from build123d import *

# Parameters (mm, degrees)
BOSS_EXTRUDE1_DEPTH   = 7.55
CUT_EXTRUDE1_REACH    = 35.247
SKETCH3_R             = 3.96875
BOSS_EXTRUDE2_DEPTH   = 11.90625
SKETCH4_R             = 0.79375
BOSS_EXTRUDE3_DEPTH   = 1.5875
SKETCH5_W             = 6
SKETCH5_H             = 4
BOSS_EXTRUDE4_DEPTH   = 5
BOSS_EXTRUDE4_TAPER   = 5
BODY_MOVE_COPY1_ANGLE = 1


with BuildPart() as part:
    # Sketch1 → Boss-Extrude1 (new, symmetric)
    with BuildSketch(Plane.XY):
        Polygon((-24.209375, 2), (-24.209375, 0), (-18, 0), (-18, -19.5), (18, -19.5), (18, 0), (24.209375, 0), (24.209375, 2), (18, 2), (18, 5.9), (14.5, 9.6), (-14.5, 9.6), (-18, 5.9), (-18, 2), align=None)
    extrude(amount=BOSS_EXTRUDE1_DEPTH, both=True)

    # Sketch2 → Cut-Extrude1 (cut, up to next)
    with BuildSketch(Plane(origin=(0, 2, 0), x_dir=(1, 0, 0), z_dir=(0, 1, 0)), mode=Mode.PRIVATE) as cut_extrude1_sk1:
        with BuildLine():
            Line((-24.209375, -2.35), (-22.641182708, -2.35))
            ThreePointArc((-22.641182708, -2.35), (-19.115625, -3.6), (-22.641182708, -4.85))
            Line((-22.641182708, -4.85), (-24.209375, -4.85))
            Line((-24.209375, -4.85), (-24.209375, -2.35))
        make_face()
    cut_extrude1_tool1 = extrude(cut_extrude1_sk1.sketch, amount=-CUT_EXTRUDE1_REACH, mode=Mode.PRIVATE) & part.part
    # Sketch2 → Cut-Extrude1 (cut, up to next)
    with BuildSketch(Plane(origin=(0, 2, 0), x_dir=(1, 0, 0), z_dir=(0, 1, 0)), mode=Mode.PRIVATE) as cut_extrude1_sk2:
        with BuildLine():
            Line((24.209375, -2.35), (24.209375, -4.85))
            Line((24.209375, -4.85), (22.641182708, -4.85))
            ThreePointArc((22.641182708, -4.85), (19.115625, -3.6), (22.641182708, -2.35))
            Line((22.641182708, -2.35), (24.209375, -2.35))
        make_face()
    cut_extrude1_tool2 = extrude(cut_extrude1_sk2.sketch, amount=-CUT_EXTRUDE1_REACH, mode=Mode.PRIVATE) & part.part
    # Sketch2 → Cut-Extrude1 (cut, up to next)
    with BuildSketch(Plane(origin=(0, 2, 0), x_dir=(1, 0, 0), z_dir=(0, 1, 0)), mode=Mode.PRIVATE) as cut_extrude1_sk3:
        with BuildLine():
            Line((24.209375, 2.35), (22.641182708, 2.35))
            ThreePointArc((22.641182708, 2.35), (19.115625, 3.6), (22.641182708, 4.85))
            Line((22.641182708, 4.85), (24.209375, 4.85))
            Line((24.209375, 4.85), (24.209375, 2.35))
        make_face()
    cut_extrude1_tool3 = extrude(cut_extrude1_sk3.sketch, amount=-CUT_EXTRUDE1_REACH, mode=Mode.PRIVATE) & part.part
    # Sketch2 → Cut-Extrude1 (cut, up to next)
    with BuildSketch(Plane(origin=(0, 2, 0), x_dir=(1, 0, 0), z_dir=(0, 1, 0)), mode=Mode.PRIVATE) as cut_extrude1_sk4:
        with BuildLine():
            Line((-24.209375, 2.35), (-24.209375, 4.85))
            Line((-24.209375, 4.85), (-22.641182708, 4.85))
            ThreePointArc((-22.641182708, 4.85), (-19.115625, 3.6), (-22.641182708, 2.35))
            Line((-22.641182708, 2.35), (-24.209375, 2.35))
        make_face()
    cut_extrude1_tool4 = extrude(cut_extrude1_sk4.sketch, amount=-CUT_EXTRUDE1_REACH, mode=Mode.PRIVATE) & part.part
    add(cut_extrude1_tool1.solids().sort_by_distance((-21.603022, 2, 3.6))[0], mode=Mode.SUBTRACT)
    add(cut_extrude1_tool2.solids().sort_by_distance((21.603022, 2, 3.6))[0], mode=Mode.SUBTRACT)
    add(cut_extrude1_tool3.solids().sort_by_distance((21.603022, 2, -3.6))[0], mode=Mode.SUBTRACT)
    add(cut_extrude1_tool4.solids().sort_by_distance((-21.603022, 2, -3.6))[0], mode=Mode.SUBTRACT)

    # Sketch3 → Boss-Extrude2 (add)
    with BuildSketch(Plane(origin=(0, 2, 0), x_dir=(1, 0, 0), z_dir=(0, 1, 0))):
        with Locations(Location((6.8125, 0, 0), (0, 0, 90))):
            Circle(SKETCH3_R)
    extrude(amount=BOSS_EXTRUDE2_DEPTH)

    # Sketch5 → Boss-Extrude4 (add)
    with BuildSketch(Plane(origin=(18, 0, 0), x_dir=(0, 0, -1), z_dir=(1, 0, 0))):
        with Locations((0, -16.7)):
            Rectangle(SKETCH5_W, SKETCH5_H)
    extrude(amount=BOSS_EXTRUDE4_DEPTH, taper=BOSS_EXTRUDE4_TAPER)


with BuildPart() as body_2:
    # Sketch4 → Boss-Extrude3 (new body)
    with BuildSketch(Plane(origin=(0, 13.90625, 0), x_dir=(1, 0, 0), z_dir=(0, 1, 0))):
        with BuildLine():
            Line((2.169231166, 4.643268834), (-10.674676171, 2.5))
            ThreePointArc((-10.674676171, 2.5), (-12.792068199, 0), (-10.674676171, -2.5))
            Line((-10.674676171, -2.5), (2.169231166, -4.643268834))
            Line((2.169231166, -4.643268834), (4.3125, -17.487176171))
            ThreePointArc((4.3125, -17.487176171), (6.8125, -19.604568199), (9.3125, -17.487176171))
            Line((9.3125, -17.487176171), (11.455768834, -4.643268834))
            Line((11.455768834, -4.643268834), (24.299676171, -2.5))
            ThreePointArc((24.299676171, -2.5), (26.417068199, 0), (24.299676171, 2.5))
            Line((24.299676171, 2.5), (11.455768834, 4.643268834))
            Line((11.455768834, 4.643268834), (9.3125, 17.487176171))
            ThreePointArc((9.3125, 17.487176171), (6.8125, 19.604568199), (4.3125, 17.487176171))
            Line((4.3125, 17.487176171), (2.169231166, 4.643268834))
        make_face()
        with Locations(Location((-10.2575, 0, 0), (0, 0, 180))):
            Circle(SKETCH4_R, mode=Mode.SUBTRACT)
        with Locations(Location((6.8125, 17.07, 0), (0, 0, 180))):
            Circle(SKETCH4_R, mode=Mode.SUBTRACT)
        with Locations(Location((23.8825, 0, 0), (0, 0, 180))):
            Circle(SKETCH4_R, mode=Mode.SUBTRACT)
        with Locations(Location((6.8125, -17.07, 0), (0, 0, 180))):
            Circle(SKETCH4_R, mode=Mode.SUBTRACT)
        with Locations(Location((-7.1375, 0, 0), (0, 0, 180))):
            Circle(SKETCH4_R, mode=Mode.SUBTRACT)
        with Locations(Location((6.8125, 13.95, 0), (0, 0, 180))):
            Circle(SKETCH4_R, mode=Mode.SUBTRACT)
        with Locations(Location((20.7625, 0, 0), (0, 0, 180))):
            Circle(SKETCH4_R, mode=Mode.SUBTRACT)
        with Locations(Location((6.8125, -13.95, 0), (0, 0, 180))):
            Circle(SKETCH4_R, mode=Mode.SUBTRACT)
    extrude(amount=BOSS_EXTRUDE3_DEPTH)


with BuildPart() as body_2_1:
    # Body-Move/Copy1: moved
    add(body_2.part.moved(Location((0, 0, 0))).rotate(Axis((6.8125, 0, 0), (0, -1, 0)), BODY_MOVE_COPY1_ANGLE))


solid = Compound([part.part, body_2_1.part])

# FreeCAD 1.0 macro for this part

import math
import FreeCAD as App
import Part
import Sketcher

V = App.Vector
Q = App.Units.Quantity

doc = App.newDocument("Part")
body = doc.addObject("PartDesign::Body", "Body")

sketch1 = body.newObject("Sketcher::SketchObject", "Sketch")
sketch1.AttachmentSupport = (doc.getObject("XY_Plane"), [""])
sketch1.MapMode = "FlatFace"
sketch1.addGeometry(Part.LineSegment(V(-24.209375, 2, 0), V(-24.209375, 0, 0)), False)
sketch1.addGeometry(Part.LineSegment(V(-24.209375, 0, 0), V(-18, 0, 0)), False)
sketch1.addGeometry(Part.LineSegment(V(-18, 0, 0), V(-18, -19.5, 0)), False)
sketch1.addGeometry(Part.LineSegment(V(-18, -19.5, 0), V(18, -19.5, 0)), False)
sketch1.addGeometry(Part.LineSegment(V(18, -19.5, 0), V(18, 0, 0)), False)
sketch1.addGeometry(Part.LineSegment(V(18, 0, 0), V(24.209375, 0, 0)), False)
sketch1.addGeometry(Part.LineSegment(V(24.209375, 0, 0), V(24.209375, 2, 0)), False)
sketch1.addGeometry(Part.LineSegment(V(24.209375, 2, 0), V(18, 2, 0)), False)
sketch1.addGeometry(Part.LineSegment(V(18, 2, 0), V(18, 5.9, 0)), False)
sketch1.addGeometry(Part.LineSegment(V(18, 5.9, 0), V(14.5, 9.6, 0)), False)
sketch1.addGeometry(Part.LineSegment(V(14.5, 9.6, 0), V(-14.5, 9.6, 0)), False)
sketch1.addGeometry(Part.LineSegment(V(-14.5, 9.6, 0), V(-18, 5.9, 0)), False)
sketch1.addGeometry(Part.LineSegment(V(-18, 5.9, 0), V(-18, 2, 0)), False)
sketch1.addGeometry(Part.LineSegment(V(-18, 2, 0), V(-24.209375, 2, 0)), False)
sketch1.addConstraint(Sketcher.Constraint("Coincident", 0, 2, 1, 1))
sketch1.addConstraint(Sketcher.Constraint("Coincident", 1, 2, 2, 1))
sketch1.addConstraint(Sketcher.Constraint("Coincident", 2, 2, 3, 1))
sketch1.addConstraint(Sketcher.Constraint("Coincident", 3, 2, 4, 1))
sketch1.addConstraint(Sketcher.Constraint("Coincident", 4, 2, 5, 1))
sketch1.addConstraint(Sketcher.Constraint("Coincident", 5, 2, 6, 1))
sketch1.addConstraint(Sketcher.Constraint("Coincident", 6, 2, 7, 1))
sketch1.addConstraint(Sketcher.Constraint("Coincident", 7, 2, 8, 1))
sketch1.addConstraint(Sketcher.Constraint("Coincident", 8, 2, 9, 1))
sketch1.addConstraint(Sketcher.Constraint("Coincident", 9, 2, 10, 1))
sketch1.addConstraint(Sketcher.Constraint("Coincident", 10, 2, 11, 1))
sketch1.addConstraint(Sketcher.Constraint("Coincident", 11, 2, 12, 1))
sketch1.addConstraint(Sketcher.Constraint("Coincident", 12, 2, 13, 1))
sketch1.addConstraint(Sketcher.Constraint("Coincident", 13, 2, 0, 1))
sketch1.addConstraint(Sketcher.Constraint("Vertical", 0))
sketch1.addConstraint(Sketcher.Constraint("Horizontal", 1))
sketch1.addConstraint(Sketcher.Constraint("Vertical", 2))
sketch1.addConstraint(Sketcher.Constraint("Horizontal", 3))
sketch1.addConstraint(Sketcher.Constraint("Vertical", 4))
sketch1.addConstraint(Sketcher.Constraint("Horizontal", 5))
sketch1.addConstraint(Sketcher.Constraint("Vertical", 6))
sketch1.addConstraint(Sketcher.Constraint("Horizontal", 7))
sketch1.addConstraint(Sketcher.Constraint("Vertical", 8))
sketch1.addConstraint(Sketcher.Constraint("Horizontal", 10))
sketch1.addConstraint(Sketcher.Constraint("Vertical", 12))
sketch1.addConstraint(Sketcher.Constraint("Horizontal", 13))
sketch1.addConstraint(Sketcher.Constraint("Symmetric", 1, 2, 4, 2, -1, 1))
sketch1.addConstraint(Sketcher.Constraint("Symmetric", 0, 2, 5, 2, -2))
sketch1.addConstraint(Sketcher.Constraint("Symmetric", 8, 2, 11, 2, -2))
sketch1.addConstraint(Sketcher.Constraint("Horizontal", 7, 2, 12, 2))
sketch1.addConstraint(Sketcher.Constraint("Vertical", 4, 2, 7, 2))
sketch1.addConstraint(Sketcher.Constraint("Equal", 9, 11))
sketch1.addConstraint(Sketcher.Constraint("DistanceX", 3, 1, 3, 2, Q("36 mm")))
sketch1.addConstraint(Sketcher.Constraint("DistanceX", 10, 2, 10, 1, Q("29 mm")))
sketch1.addConstraint(Sketcher.Constraint("DistanceY", 0, 2, 0, 1, Q("2 mm")))
sketch1.addConstraint(Sketcher.Constraint("DistanceY", 2, 2, 2, 1, Q("19.5 mm")))
sketch1.addConstraint(Sketcher.Constraint("DistanceY", 8, 1, 8, 2, Q("3.9 mm")))
sketch1.addConstraint(Sketcher.Constraint("DistanceY", -1, 1, 9, 2, Q("9.6 mm")))
sketch1.addConstraint(Sketcher.Constraint("DistanceX", 1, 1, 1, 2, Q("6.209375 mm")))
pad1 = body.newObject("PartDesign::Pad", "Pad")
pad1.Profile = sketch1
pad1.Length = 15.1
pad1.Midplane = True

sketch2 = body.newObject("Sketcher::SketchObject", "Sketch001")
sketch2.AttachmentSupport = (doc.getObject("XZ_Plane"), [""])
sketch2.MapMode = "FlatFace"
sketch2.AttachmentOffset = App.Placement(V(0, 0, -2), App.Rotation())
sketch2.addGeometry(Part.LineSegment(V(-22.641183, 2.35, 0), V(-24.209375, 2.35, 0)), False)
sketch2.addGeometry(Part.LineSegment(V(-24.209375, 2.35, 0), V(-24.209375, 4.85, 0)), False)
sketch2.addGeometry(Part.LineSegment(V(-24.209375, 4.85, 0), V(-22.641183, 4.85, 0)), False)
sketch2.addGeometry(Part.ArcOfCircle(Part.Circle(V(-21.1, 3.6, 0), V(0, 0, 1), 1.984375), math.radians(-140.955687), math.radians(140.955687)), False)
sketch2.addConstraint(Sketcher.Constraint("Coincident", 0, 2, 1, 1))
sketch2.addConstraint(Sketcher.Constraint("Coincident", 1, 2, 2, 1))
sketch2.addConstraint(Sketcher.Constraint("Coincident", 2, 2, 3, 2))
sketch2.addConstraint(Sketcher.Constraint("Coincident", 3, 1, 0, 1))
sketch2.addConstraint(Sketcher.Constraint("Horizontal", 0))
sketch2.addConstraint(Sketcher.Constraint("Vertical", 1))
sketch2.addConstraint(Sketcher.Constraint("Horizontal", 2))
sketch2.addConstraint(Sketcher.Constraint("Vertical", 2, 2, 3, 1))
sketch2.addConstraint(Sketcher.Constraint("DistanceY", 1, 1, 1, 2, Q("2.5 mm")))
sketch2.addConstraint(Sketcher.Constraint("DistanceX", 3, 3, -1, 1, Q("21.1 mm")))
sketch2.addConstraint(Sketcher.Constraint("DistanceY", -1, 1, 3, 3, Q("3.6 mm")))
sketch2.addConstraint(Sketcher.Constraint("Radius", 3, Q("1.984375 mm")))
sketch2.addConstraint(Sketcher.Constraint("DistanceX", 0, 2, 0, 1, Q("1.568192 mm")))
pocket1 = body.newObject("PartDesign::Pocket", "Pocket")
pocket1.Profile = sketch2
pocket1.Type = "UpToFirst"
pocket1.Reversed = True

sketch3 = body.newObject("Sketcher::SketchObject", "Sketch002")
sketch3.AttachmentSupport = (doc.getObject("XZ_Plane"), [""])
sketch3.MapMode = "FlatFace"
sketch3.AttachmentOffset = App.Placement(V(0, 0, -2), App.Rotation())
sketch3.addGeometry(Part.LineSegment(V(24.209375, 4.85, 0), V(24.209375, 2.35, 0)), False)
sketch3.addGeometry(Part.LineSegment(V(24.209375, 2.35, 0), V(22.641183, 2.35, 0)), False)
sketch3.addGeometry(Part.ArcOfCircle(Part.Circle(V(21.1, 3.6, 0), V(0, 0, 1), 1.984375), math.radians(39.044313), math.radians(320.955687)), False)
sketch3.addGeometry(Part.LineSegment(V(22.641183, 4.85, 0), V(24.209375, 4.85, 0)), False)
sketch3.addConstraint(Sketcher.Constraint("Coincident", 0, 2, 1, 1))
sketch3.addConstraint(Sketcher.Constraint("Coincident", 1, 2, 2, 2))
sketch3.addConstraint(Sketcher.Constraint("Coincident", 2, 1, 3, 1))
sketch3.addConstraint(Sketcher.Constraint("Coincident", 3, 2, 0, 1))
sketch3.addConstraint(Sketcher.Constraint("Vertical", 0))
sketch3.addConstraint(Sketcher.Constraint("Horizontal", 1))
sketch3.addConstraint(Sketcher.Constraint("Horizontal", 3))
sketch3.addConstraint(Sketcher.Constraint("Vertical", 1, 2, 2, 1))
sketch3.addConstraint(Sketcher.Constraint("DistanceY", 0, 2, 0, 1, Q("2.5 mm")))
sketch3.addConstraint(Sketcher.Constraint("DistanceX", -1, 1, 2, 3, Q("21.1 mm")))
sketch3.addConstraint(Sketcher.Constraint("DistanceY", -1, 1, 2, 3, Q("3.6 mm")))
sketch3.addConstraint(Sketcher.Constraint("Radius", 2, Q("1.984375 mm")))
sketch3.addConstraint(Sketcher.Constraint("DistanceX", 1, 2, 1, 1, Q("1.568192 mm")))
pocket2 = body.newObject("PartDesign::Pocket", "Pocket001")
pocket2.Profile = sketch3
pocket2.Type = "UpToFirst"
pocket2.Reversed = True

sketch4 = body.newObject("Sketcher::SketchObject", "Sketch003")
sketch4.AttachmentSupport = (doc.getObject("XZ_Plane"), [""])
sketch4.MapMode = "FlatFace"
sketch4.AttachmentOffset = App.Placement(V(0, 0, -2), App.Rotation())
sketch4.addGeometry(Part.LineSegment(V(22.641183, -2.35, 0), V(24.209375, -2.35, 0)), False)
sketch4.addGeometry(Part.LineSegment(V(24.209375, -2.35, 0), V(24.209375, -4.85, 0)), False)
sketch4.addGeometry(Part.LineSegment(V(24.209375, -4.85, 0), V(22.641183, -4.85, 0)), False)
sketch4.addGeometry(Part.ArcOfCircle(Part.Circle(V(21.1, -3.6, 0), V(0, 0, 1), 1.984375), math.radians(39.044313), math.radians(320.955687)), False)
sketch4.addConstraint(Sketcher.Constraint("Coincident", 0, 2, 1, 1))
sketch4.addConstraint(Sketcher.Constraint("Coincident", 1, 2, 2, 1))
sketch4.addConstraint(Sketcher.Constraint("Coincident", 2, 2, 3, 2))
sketch4.addConstraint(Sketcher.Constraint("Coincident", 3, 1, 0, 1))
sketch4.addConstraint(Sketcher.Constraint("Horizontal", 0))
sketch4.addConstraint(Sketcher.Constraint("Vertical", 1))
sketch4.addConstraint(Sketcher.Constraint("Horizontal", 2))
sketch4.addConstraint(Sketcher.Constraint("Vertical", 2, 2, 3, 1))
sketch4.addConstraint(Sketcher.Constraint("DistanceY", 1, 2, 1, 1, Q("2.5 mm")))
sketch4.addConstraint(Sketcher.Constraint("DistanceX", -1, 1, 3, 3, Q("21.1 mm")))
sketch4.addConstraint(Sketcher.Constraint("DistanceY", 3, 3, -1, 1, Q("3.6 mm")))
sketch4.addConstraint(Sketcher.Constraint("Radius", 3, Q("1.984375 mm")))
sketch4.addConstraint(Sketcher.Constraint("DistanceX", 0, 1, 0, 2, Q("1.568192 mm")))
pocket3 = body.newObject("PartDesign::Pocket", "Pocket002")
pocket3.Profile = sketch4
pocket3.Type = "UpToFirst"
pocket3.Reversed = True

sketch5 = body.newObject("Sketcher::SketchObject", "Sketch004")
sketch5.AttachmentSupport = (doc.getObject("XZ_Plane"), [""])
sketch5.MapMode = "FlatFace"
sketch5.AttachmentOffset = App.Placement(V(0, 0, -2), App.Rotation())
sketch5.addGeometry(Part.LineSegment(V(-24.209375, -4.85, 0), V(-24.209375, -2.35, 0)), False)
sketch5.addGeometry(Part.LineSegment(V(-24.209375, -2.35, 0), V(-22.641183, -2.35, 0)), False)
sketch5.addGeometry(Part.ArcOfCircle(Part.Circle(V(-21.1, -3.6, 0), V(0, 0, 1), 1.984375), math.radians(-140.955687), math.radians(140.955687)), False)
sketch5.addGeometry(Part.LineSegment(V(-22.641183, -4.85, 0), V(-24.209375, -4.85, 0)), False)
sketch5.addConstraint(Sketcher.Constraint("Coincident", 0, 2, 1, 1))
sketch5.addConstraint(Sketcher.Constraint("Coincident", 1, 2, 2, 2))
sketch5.addConstraint(Sketcher.Constraint("Coincident", 2, 1, 3, 1))
sketch5.addConstraint(Sketcher.Constraint("Coincident", 3, 2, 0, 1))
sketch5.addConstraint(Sketcher.Constraint("Vertical", 0))
sketch5.addConstraint(Sketcher.Constraint("Horizontal", 1))
sketch5.addConstraint(Sketcher.Constraint("Horizontal", 3))
sketch5.addConstraint(Sketcher.Constraint("Vertical", 1, 2, 2, 1))
sketch5.addConstraint(Sketcher.Constraint("DistanceY", 0, 1, 0, 2, Q("2.5 mm")))
sketch5.addConstraint(Sketcher.Constraint("DistanceX", 2, 3, -1, 1, Q("21.1 mm")))
sketch5.addConstraint(Sketcher.Constraint("DistanceY", 2, 3, -1, 1, Q("3.6 mm")))
sketch5.addConstraint(Sketcher.Constraint("Radius", 2, Q("1.984375 mm")))
sketch5.addConstraint(Sketcher.Constraint("DistanceX", 1, 1, 1, 2, Q("1.568192 mm")))
pocket4 = body.newObject("PartDesign::Pocket", "Pocket003")
pocket4.Profile = sketch5
pocket4.Type = "UpToFirst"
pocket4.Reversed = True

sketch6 = body.newObject("Sketcher::SketchObject", "Sketch005")
sketch6.AttachmentSupport = (doc.getObject("XZ_Plane"), [""])
sketch6.MapMode = "FlatFace"
sketch6.AttachmentOffset = App.Placement(V(0, 0, -2), App.Rotation())
sketch6.addGeometry(Part.Circle(V(6.8125, 0, 0), V(0, 0, 1), 3.96875), False)
sketch6.addConstraint(Sketcher.Constraint("PointOnObject", 0, 3, -1))
sketch6.addConstraint(Sketcher.Constraint("Diameter", 0, Q("7.9375 mm")))
sketch6.addConstraint(Sketcher.Constraint("DistanceX", -1, 1, 0, 3, Q("6.8125 mm")))
pad2 = body.newObject("PartDesign::Pad", "Pad001")
pad2.Profile = sketch6
pad2.Length = 11.90625
pad2.Reversed = True

sketch7 = body.newObject("Sketcher::SketchObject", "Sketch006")
sketch7.AttachmentSupport = (doc.getObject("YZ_Plane"), [""])
sketch7.MapMode = "FlatFace"
sketch7.AttachmentOffset = App.Placement(V(0, 0, 18), App.Rotation())
sketch7.addGeometry(Part.LineSegment(V(-14.7, 3, 0), V(-18.7, 3, 0)), False)
sketch7.addGeometry(Part.LineSegment(V(-18.7, 3, 0), V(-18.7, -3, 0)), False)
sketch7.addGeometry(Part.LineSegment(V(-18.7, -3, 0), V(-14.7, -3, 0)), False)
sketch7.addGeometry(Part.LineSegment(V(-14.7, -3, 0), V(-14.7, 3, 0)), False)
sketch7.addConstraint(Sketcher.Constraint("Coincident", 0, 2, 1, 1))
sketch7.addConstraint(Sketcher.Constraint("Coincident", 1, 2, 2, 1))
sketch7.addConstraint(Sketcher.Constraint("Coincident", 2, 2, 3, 1))
sketch7.addConstraint(Sketcher.Constraint("Coincident", 3, 2, 0, 1))
sketch7.addConstraint(Sketcher.Constraint("Horizontal", 0))
sketch7.addConstraint(Sketcher.Constraint("Vertical", 1))
sketch7.addConstraint(Sketcher.Constraint("Horizontal", 2))
sketch7.addConstraint(Sketcher.Constraint("Vertical", 3))
sketch7.addConstraint(Sketcher.Constraint("DistanceX", 0, 2, 0, 1, Q("4 mm")))
sketch7.addConstraint(Sketcher.Constraint("DistanceY", 1, 2, 1, 1, Q("6 mm")))
sketch7.addConstraint(Sketcher.Constraint("DistanceY", -1, 1, 0, 2, Q("3 mm")))
sketch7.addConstraint(Sketcher.Constraint("DistanceX", 0, 2, -1, 1, Q("18.7 mm")))
pad3 = body.newObject("PartDesign::Pad", "Pad002")
pad3.Profile = sketch7
pad3.Length = 5
pad3.TaperAngle = -5
body2 = doc.addObject("PartDesign::Body", "Body001")

sketch8 = body2.newObject("Sketcher::SketchObject", "Sketch007")
sketch8.AttachmentSupport = (doc.getObject("XZ_Plane001"), [""])
sketch8.MapMode = "FlatFace"
sketch8.AttachmentOffset = App.Placement(V(0, 0, -13.90625), App.Rotation())
sketch8.addGeometry(Part.LineSegment(V(2.169231, -4.643269, 0), V(-10.674676, -2.5, 0)), False)
sketch8.addGeometry(Part.ArcOfCircle(Part.Circle(V(-10.2575, 0, 0), V(0, 0, 1), 2.534568), math.radians(99.473683), math.radians(260.526317)), False)
sketch8.addGeometry(Part.LineSegment(V(-10.674676, 2.5, 0), V(2.169231, 4.643269, 0)), False)
sketch8.addGeometry(Part.LineSegment(V(2.169231, 4.643269, 0), V(4.3125, 17.487176, 0)), False)
sketch8.addGeometry(Part.ArcOfCircle(Part.Circle(V(6.8125, 17.07, 0), V(0, 0, 1), 2.534568), math.radians(9.473683), math.radians(170.526317)), False)
sketch8.addGeometry(Part.LineSegment(V(9.3125, 17.487176, 0), V(11.455769, 4.643269, 0)), False)
sketch8.addGeometry(Part.LineSegment(V(11.455769, 4.643269, 0), V(24.299676, 2.5, 0)), False)
sketch8.addGeometry(Part.ArcOfCircle(Part.Circle(V(23.8825, 0, 0), V(0, 0, 1), 2.534568), math.radians(-80.526317), math.radians(80.526317)), False)
sketch8.addGeometry(Part.LineSegment(V(24.299676, -2.5, 0), V(11.455769, -4.643269, 0)), False)
sketch8.addGeometry(Part.LineSegment(V(11.455769, -4.643269, 0), V(9.3125, -17.487176, 0)), False)
sketch8.addGeometry(Part.ArcOfCircle(Part.Circle(V(6.8125, -17.07, 0), V(0, 0, 1), 2.534568), math.radians(-170.526317), math.radians(-9.473683)), False)
sketch8.addGeometry(Part.LineSegment(V(4.3125, -17.487176, 0), V(2.169231, -4.643269, 0)), False)
sketch8.addGeometry(Part.Circle(V(6.8125, 17.07, 0), V(0, 0, 1), 0.79375), False)
sketch8.addGeometry(Part.Circle(V(6.8125, 13.95, 0), V(0, 0, 1), 0.79375), False)
sketch8.addGeometry(Part.Circle(V(-10.2575, 0, 0), V(0, 0, 1), 0.79375), False)
sketch8.addGeometry(Part.Circle(V(-7.1375, 0, 0), V(0, 0, 1), 0.79375), False)
sketch8.addGeometry(Part.Circle(V(20.7625, 0, 0), V(0, 0, 1), 0.79375), False)
sketch8.addGeometry(Part.Circle(V(23.8825, 0, 0), V(0, 0, 1), 0.79375), False)
sketch8.addGeometry(Part.Circle(V(6.8125, -13.95, 0), V(0, 0, 1), 0.79375), False)
sketch8.addGeometry(Part.Circle(V(6.8125, -17.07, 0), V(0, 0, 1), 0.79375), False)
sketch8.addConstraint(Sketcher.Constraint("Tangent", 0, 2, 1, 2))
sketch8.addConstraint(Sketcher.Constraint("Tangent", 1, 1, 2, 1))
sketch8.addConstraint(Sketcher.Constraint("Coincident", 2, 2, 3, 1))
sketch8.addConstraint(Sketcher.Constraint("Tangent", 3, 2, 4, 2))
sketch8.addConstraint(Sketcher.Constraint("Tangent", 4, 1, 5, 1))
sketch8.addConstraint(Sketcher.Constraint("Coincident", 5, 2, 6, 1))
sketch8.addConstraint(Sketcher.Constraint("Tangent", 6, 2, 7, 2))
sketch8.addConstraint(Sketcher.Constraint("Tangent", 7, 1, 8, 1))
sketch8.addConstraint(Sketcher.Constraint("Coincident", 8, 2, 9, 1))
sketch8.addConstraint(Sketcher.Constraint("Tangent", 9, 2, 10, 2))
sketch8.addConstraint(Sketcher.Constraint("Tangent", 10, 1, 11, 1))
sketch8.addConstraint(Sketcher.Constraint("Coincident", 11, 2, 0, 1))
sketch8.addConstraint(Sketcher.Constraint("Coincident", 12, 3, 4, 3))
sketch8.addConstraint(Sketcher.Constraint("Coincident", 14, 3, 1, 3))
sketch8.addConstraint(Sketcher.Constraint("Coincident", 17, 3, 7, 3))
sketch8.addConstraint(Sketcher.Constraint("Coincident", 19, 3, 10, 3))
sketch8.addConstraint(Sketcher.Constraint("Equal", 1, 4))
sketch8.addConstraint(Sketcher.Constraint("Equal", 4, 7))
sketch8.addConstraint(Sketcher.Constraint("Equal", 7, 10))
sketch8.addConstraint(Sketcher.Constraint("Equal", 12, 13))
sketch8.addConstraint(Sketcher.Constraint("Equal", 13, 14))
sketch8.addConstraint(Sketcher.Constraint("Equal", 14, 15))
sketch8.addConstraint(Sketcher.Constraint("Equal", 15, 16))
sketch8.addConstraint(Sketcher.Constraint("Equal", 16, 17))
sketch8.addConstraint(Sketcher.Constraint("Equal", 17, 18))
sketch8.addConstraint(Sketcher.Constraint("Equal", 18, 19))
sketch8.addConstraint(Sketcher.Constraint("Symmetric", 4, 3, 10, 3, -1))
sketch8.addConstraint(Sketcher.Constraint("Symmetric", 13, 3, 18, 3, -1))
sketch8.addConstraint(Sketcher.Constraint("Symmetric", 0, 2, 1, 1, -1))
sketch8.addConstraint(Sketcher.Constraint("Symmetric", 6, 2, 7, 1, -1))
sketch8.addConstraint(Sketcher.Constraint("PointOnObject", 15, 3, -1))
sketch8.addConstraint(Sketcher.Constraint("PointOnObject", 16, 3, -1))
sketch8.addConstraint(Sketcher.Constraint("Perpendicular", 0, 3))
sketch8.addConstraint(Sketcher.Constraint("Perpendicular", 2, 5))
sketch8.addConstraint(Sketcher.Constraint("Perpendicular", 3, 6))
sketch8.addConstraint(Sketcher.Constraint("Perpendicular", 6, 9))
sketch8.addConstraint(Sketcher.Constraint("Perpendicular", 8, 11))
sketch8.addConstraint(Sketcher.Constraint("Horizontal", 2, 2, 5, 2))
sketch8.addConstraint(Sketcher.Constraint("Vertical", 12, 3, 13, 3))
sketch8.addConstraint(Sketcher.Constraint("Equal", 2, 3))
sketch8.addConstraint(Sketcher.Constraint("DistanceY", 0, 2, 1, 1, Q("5 mm")))
sketch8.addConstraint(Sketcher.Constraint("Diameter", 12, Q("1.5875 mm")))
sketch8.addConstraint(Sketcher.Constraint("DistanceY", -1, 1, 4, 3, Q("17.07 mm")))
sketch8.addConstraint(Sketcher.Constraint("DistanceY", -1, 1, 13, 3, Q("13.95 mm")))
sketch8.addConstraint(Sketcher.Constraint("Radius", 1, Q("2.534568 mm")))
sketch8.addConstraint(Sketcher.Constraint("DistanceX", 1, 3, 15, 3, Q("3.12 mm")))
sketch8.addConstraint(Sketcher.Constraint("DistanceX", 16, 3, 7, 3, Q("3.12 mm")))
sketch8.addConstraint(Sketcher.Constraint("DistanceX", 1, 3, -1, 1, Q("10.2575 mm")))
pad4 = body2.newObject("PartDesign::Pad", "Pad003")
pad4.Profile = sketch8
pad4.Length = 1.5875
pad4.Reversed = True
body3 = doc.addObject("PartDesign::Body", "Body002")
doc.recompute()

body2.Placement = App.Placement(V(0.001038, 0, -0.118895), App.Rotation(V(0, -1, 0), 1))
boolean = body3.newObject("PartDesign::Boolean", "Boolean")
boolean.Type = "Fuse"
boolean.addObjects([body2])

doc.recompute()
